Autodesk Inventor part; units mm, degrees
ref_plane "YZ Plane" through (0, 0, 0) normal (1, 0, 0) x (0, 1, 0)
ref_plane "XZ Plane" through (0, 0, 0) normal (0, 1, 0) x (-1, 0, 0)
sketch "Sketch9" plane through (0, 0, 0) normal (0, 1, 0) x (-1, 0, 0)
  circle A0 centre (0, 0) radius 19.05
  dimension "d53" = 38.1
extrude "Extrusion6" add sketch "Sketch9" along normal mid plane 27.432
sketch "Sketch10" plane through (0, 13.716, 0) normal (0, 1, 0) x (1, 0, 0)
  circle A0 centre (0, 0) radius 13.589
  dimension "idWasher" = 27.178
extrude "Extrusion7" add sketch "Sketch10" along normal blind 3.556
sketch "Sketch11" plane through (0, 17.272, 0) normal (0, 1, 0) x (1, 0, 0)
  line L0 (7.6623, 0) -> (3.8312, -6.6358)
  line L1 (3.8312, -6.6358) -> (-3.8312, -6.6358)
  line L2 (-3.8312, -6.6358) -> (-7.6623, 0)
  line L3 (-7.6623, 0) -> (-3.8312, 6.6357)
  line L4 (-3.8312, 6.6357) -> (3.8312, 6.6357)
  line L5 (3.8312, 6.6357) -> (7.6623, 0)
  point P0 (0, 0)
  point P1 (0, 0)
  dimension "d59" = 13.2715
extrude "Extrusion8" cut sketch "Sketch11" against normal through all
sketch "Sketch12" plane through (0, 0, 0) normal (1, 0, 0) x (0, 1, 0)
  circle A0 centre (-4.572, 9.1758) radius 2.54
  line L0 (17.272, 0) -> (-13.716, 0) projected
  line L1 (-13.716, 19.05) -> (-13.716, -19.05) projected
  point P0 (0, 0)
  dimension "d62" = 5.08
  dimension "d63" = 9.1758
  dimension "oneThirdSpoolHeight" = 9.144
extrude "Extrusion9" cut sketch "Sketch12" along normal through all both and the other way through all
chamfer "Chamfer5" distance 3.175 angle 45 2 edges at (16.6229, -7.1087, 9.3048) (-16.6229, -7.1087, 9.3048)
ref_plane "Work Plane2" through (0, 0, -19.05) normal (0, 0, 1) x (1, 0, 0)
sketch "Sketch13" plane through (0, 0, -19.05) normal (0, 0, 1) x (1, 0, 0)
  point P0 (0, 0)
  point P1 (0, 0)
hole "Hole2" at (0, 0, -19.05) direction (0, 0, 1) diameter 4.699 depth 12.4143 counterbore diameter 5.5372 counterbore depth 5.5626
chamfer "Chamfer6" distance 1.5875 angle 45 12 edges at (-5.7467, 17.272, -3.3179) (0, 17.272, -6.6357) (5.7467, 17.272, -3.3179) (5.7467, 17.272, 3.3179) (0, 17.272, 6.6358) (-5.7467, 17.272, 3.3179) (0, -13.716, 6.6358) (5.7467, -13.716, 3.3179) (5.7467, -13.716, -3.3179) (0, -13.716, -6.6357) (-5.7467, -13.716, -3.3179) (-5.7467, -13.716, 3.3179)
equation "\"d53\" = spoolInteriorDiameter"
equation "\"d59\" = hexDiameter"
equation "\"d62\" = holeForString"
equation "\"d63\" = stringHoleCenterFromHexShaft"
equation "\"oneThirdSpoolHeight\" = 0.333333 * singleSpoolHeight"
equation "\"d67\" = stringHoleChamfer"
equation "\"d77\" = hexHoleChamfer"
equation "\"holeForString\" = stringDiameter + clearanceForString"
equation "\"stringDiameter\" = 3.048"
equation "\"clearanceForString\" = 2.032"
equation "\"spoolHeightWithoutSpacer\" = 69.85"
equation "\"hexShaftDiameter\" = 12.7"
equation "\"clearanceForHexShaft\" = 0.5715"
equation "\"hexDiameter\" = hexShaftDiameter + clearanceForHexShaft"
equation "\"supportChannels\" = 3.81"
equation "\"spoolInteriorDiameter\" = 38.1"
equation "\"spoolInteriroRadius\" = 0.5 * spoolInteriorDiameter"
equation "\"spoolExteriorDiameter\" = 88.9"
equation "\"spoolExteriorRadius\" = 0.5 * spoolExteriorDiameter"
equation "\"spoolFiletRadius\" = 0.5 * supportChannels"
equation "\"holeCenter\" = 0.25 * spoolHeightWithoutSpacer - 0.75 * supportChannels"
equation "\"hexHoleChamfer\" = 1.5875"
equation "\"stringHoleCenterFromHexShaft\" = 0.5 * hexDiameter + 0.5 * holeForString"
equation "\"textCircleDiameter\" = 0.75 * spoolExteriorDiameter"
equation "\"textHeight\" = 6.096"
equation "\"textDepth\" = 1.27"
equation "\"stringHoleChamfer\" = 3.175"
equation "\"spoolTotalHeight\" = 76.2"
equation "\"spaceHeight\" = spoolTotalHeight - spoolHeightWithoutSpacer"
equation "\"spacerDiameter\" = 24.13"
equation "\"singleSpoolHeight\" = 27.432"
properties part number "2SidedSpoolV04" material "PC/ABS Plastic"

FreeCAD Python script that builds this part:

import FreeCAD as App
import Part
import Sketcher

V = App.Vector
Q = App.Units.Quantity


def edges_at(feature, points):
    """Names of the edges that pass closest to the given points."""
    edges = feature.Shape.Edges
    near = lambda p: min(range(len(edges)), key=lambda i: edges[i].distToShape(Part.Vertex(*p))[0])
    return sorted({f"Edge{near(p) + 1}" for p in points})

doc = App.newDocument("Part")
body = doc.addObject("PartDesign::Body", "Body")

sketch1 = body.newObject("Sketcher::SketchObject", "Sketch")
sketch1.AttachmentSupport = (doc.getObject("XZ_Plane"), [""])
sketch1.MapMode = "FlatFace"
sketch1.addGeometry(Part.Circle(V(0, 0, 0), V(0, 0, 1), 19.05), False)
sketch1.addConstraint(Sketcher.Constraint("Coincident", 0, 3, -1, 1))
sketch1.addConstraint(Sketcher.Constraint("Diameter", 0, Q("1.5 in")))
pad1 = body.newObject("PartDesign::Pad", "Pad")
pad1.Profile = sketch1
pad1.Length = Q("1.08 in")
pad1.Midplane = True

sketch2 = body.newObject("Sketcher::SketchObject", "Sketch001")
sketch2.AttachmentSupport = (doc.getObject("XZ_Plane"), [""])
sketch2.MapMode = "FlatFace"
sketch2.AttachmentOffset = App.Placement(V(0, 0, -0.54 * 25.4), App.Rotation())
sketch2.addGeometry(Part.Circle(V(0, 0, 0), V(0, 0, 1), 13.589), False)
sketch2.addConstraint(Sketcher.Constraint("Coincident", 0, 3, -1, 1))
sketch2.addConstraint(Sketcher.Constraint("Diameter", 0, Q("1.07 in")))
pad2 = body.newObject("PartDesign::Pad", "Pad001")
pad2.Profile = sketch2
pad2.Length = Q("0.14 in")
pad2.Reversed = True

sketch3 = body.newObject("Sketcher::SketchObject", "Sketch002")
sketch3.AttachmentSupport = (doc.getObject("XZ_Plane"), [""])
sketch3.MapMode = "FlatFace"
sketch3.AttachmentOffset = App.Placement(V(0, 0, -0.68 * 25.4), App.Rotation())
sketch3.addGeometry(Part.LineSegment(V(3.8312, 6.6358, 0), V(7.6623, 0, 0)), False)
sketch3.addGeometry(Part.LineSegment(V(7.6623, 0, 0), V(3.8312, -6.6357, 0)), False)
sketch3.addGeometry(Part.LineSegment(V(3.8312, -6.6357, 0), V(-3.8312, -6.6357, 0)), False)
sketch3.addGeometry(Part.LineSegment(V(-3.8312, -6.6357, 0), V(-7.6623, 0, 0)), False)
sketch3.addGeometry(Part.LineSegment(V(-7.6623, 0, 0), V(-3.8312, 6.6358, 0)), False)
sketch3.addGeometry(Part.LineSegment(V(-3.8312, 6.6358, 0), V(3.8312, 6.6358, 0)), False)
sketch3.addConstraint(Sketcher.Constraint("Coincident", 0, 2, 1, 1))
sketch3.addConstraint(Sketcher.Constraint("Coincident", 1, 2, 2, 1))
sketch3.addConstraint(Sketcher.Constraint("Coincident", 2, 2, 3, 1))
sketch3.addConstraint(Sketcher.Constraint("Coincident", 3, 2, 4, 1))
sketch3.addConstraint(Sketcher.Constraint("Coincident", 4, 2, 5, 1))
sketch3.addConstraint(Sketcher.Constraint("Coincident", 5, 2, 0, 1))
sketch3.addConstraint(Sketcher.Constraint("Horizontal", 2))
sketch3.addConstraint(Sketcher.Constraint("Horizontal", 5))
sketch3.addConstraint(Sketcher.Constraint("Symmetric", 0, 2, 3, 2, -1, 1))
sketch3.addConstraint(Sketcher.Constraint("Symmetric", 1, 2, 4, 2, -1, 1))
sketch3.addConstraint(Sketcher.Constraint("PointOnObject", 0, 2, -1))
sketch3.addConstraint(Sketcher.Constraint("Parallel", 0, 3))
sketch3.addConstraint(Sketcher.Constraint("Vertical", 2, 2, 4, 2))
sketch3.addConstraint(Sketcher.Constraint("Angle", 0, Q("-60.0005 deg")))
sketch3.addConstraint(Sketcher.Constraint("DistanceY", 2, 2, 4, 2, Q("0.5225 in")))
sketch3.addConstraint(Sketcher.Constraint("DistanceX", 2, 2, 2, 1, Q("7.6624 mm")))
pocket1 = body.newObject("PartDesign::Pocket", "Pocket")
pocket1.Profile = sketch3
pocket1.Type = "ThroughAll"
pocket1.Reversed = True

sketch4 = body.newObject("Sketcher::SketchObject", "Sketch003")
sketch4.AttachmentSupport = (doc.getObject("YZ_Plane"), [""])
sketch4.MapMode = "FlatFace"
sketch4.addGeometry(Part.Circle(V(-4.572, 9.1758, 0), V(0, 0, 1), 2.54), False)
sketch4.addConstraint(Sketcher.Constraint("Diameter", 0, Q("0.2 in")))
sketch4.addConstraint(Sketcher.Constraint("DistanceX", 0, 3, -1, 1, Q("0.18 in")))
sketch4.addConstraint(Sketcher.Constraint("DistanceY", -1, 1, 0, 3, Q("9.1758 mm")))
pocket2 = body.newObject("PartDesign::Pocket", "Pocket001")
pocket2.Profile = sketch4
pocket2.Type = "ThroughAll"
pocket2.Midplane = True
doc.recompute()

chamfer = body.newObject("PartDesign::Chamfer", "Chamfer")
chamfer.Base = (pocket2, edges_at(pocket2, [(16.623, -7.109, 9.305), (-16.623, -7.109, 9.305)]))
chamfer.Size = Q("0.125 in")

sketch5 = body.newObject("Sketcher::SketchObject", "Sketch004")
sketch5.AttachmentSupport = (doc.getObject("XY_Plane"), [""])
sketch5.MapMode = "FlatFace"
sketch5.AttachmentOffset = App.Placement(V(0, 0, -0.75 * 25.4), App.Rotation())
sketch5.addGeometry(Part.Circle(V(0, 0, 0), V(0, 0, 1), 2.3495), False)
sketch5.addConstraint(Sketcher.Constraint("Coincident", 0, 3, -1, 1))
sketch5.addConstraint(Sketcher.Constraint("Diameter", 0, Q("0.185 in")))
doc.recompute()
hole = body.newObject("PartDesign::Hole", "Hole")
hole.Profile = sketch5
hole.ThreadType = "None"
hole.Diameter = Q("0.185 in")
hole.DepthType = "Dimension"
hole.Depth = 12.4143
hole.DrillPoint = "Flat"
hole.HoleCutType = "Counterbore"
hole.HoleCutDiameter = Q("0.218 in")
hole.HoleCutDepth = Q("0.219 in")
hole.Reversed = True
doc.recompute()

chamfer2 = body.newObject("PartDesign::Chamfer", "Chamfer001")
chamfer2.Base = (hole, edges_at(hole, [
    (-5.747, 17.272, -3.318),
    (0, 17.272, -6.636),
    (5.747, 17.272, -3.318),
    (5.747, 17.272, 3.318),
    (0, 17.272, 6.636),
    (-5.747, 17.272, 3.318),
    (0, -13.716, 6.636),
    (5.747, -13.716, 3.318),
    (5.747, -13.716, -3.318),
    (0, -13.716, -6.636),
    (-5.747, -13.716, -3.318),
    (-5.747, -13.716, 3.318),
]))
chamfer2.Size = Q("0.0625 in")

doc.recompute()
